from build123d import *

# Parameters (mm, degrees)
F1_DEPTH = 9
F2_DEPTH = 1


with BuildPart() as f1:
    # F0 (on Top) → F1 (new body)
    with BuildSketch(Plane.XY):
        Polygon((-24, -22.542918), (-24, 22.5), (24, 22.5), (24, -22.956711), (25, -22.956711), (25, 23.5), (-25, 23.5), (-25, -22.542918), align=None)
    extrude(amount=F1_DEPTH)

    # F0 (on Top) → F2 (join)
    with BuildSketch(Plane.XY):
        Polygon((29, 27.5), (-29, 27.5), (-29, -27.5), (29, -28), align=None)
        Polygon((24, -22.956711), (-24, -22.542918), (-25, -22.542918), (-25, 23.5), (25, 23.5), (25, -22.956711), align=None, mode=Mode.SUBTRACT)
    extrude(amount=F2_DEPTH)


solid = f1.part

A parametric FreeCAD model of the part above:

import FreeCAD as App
import Part
import Sketcher

V = App.Vector


def add_polygon(sketch, points):
    """Adds a closed chain of lines whose ends are joined by coincident constraints."""
    first, n = sketch.GeometryCount, len(points)
    for a, b in zip(points, points[1:] + points[:1]):
        sketch.addGeometry(Part.LineSegment(App.Vector(*a, 0), App.Vector(*b, 0)), False)
    for i in range(n):
        sketch.addConstraint(Sketcher.Constraint("Coincident", first + i, 2, first + (i + 1) % n, 1))

doc = App.newDocument("Part")
body = doc.addObject("PartDesign::Body", "Body")

# Sketch on XY plane
sketch1 = body.newObject("Sketcher::SketchObject", "Sketch")
sketch1.AttachmentSupport = (doc.getObject("XY_Plane"), [""])
sketch1.MapMode = "FlatFace"
add_polygon(sketch1, [(-24, -22.542918), (-24, 22.5), (24, 22.5), (24, -22.956711), (25, -22.956711), (25, 23.5), (-25, 23.5), (-25, -22.542918)])  # lines 0-7
sketch1.addConstraint(Sketcher.Constraint("Vertical", 0))
sketch1.addConstraint(Sketcher.Constraint("Horizontal", 1))
sketch1.addConstraint(Sketcher.Constraint("Vertical", 2))
sketch1.addConstraint(Sketcher.Constraint("Horizontal", 3))
sketch1.addConstraint(Sketcher.Constraint("Vertical", 4))
sketch1.addConstraint(Sketcher.Constraint("Horizontal", 5))
sketch1.addConstraint(Sketcher.Constraint("Vertical", 6))
sketch1.addConstraint(Sketcher.Constraint("Horizontal", 7))
sketch1.addConstraint(Sketcher.Constraint("Equal", 3, 7))
sketch1.addConstraint(Sketcher.Constraint("DistanceX", 1, 1, 1, 2, 48.0))
sketch1.addConstraint(Sketcher.Constraint("DistanceX", 3, 1, 3, 2, 1.0))
sketch1.addConstraint(Sketcher.Constraint("DistanceX", 0, 2, -1, 1, 24.0))
sketch1.addConstraint(Sketcher.Constraint("DistanceY", 1, 2, 4, 2, 1.0))
sketch1.addConstraint(Sketcher.Constraint("DistanceY", -1, 1, 0, 2, 22.5))
sketch1.addConstraint(Sketcher.Constraint("DistanceY", 2, 2, 2, 1, 45.456711))
sketch1.addConstraint(Sketcher.Constraint("DistanceY", 0, 1, 0, 2, 45.042918))
pad1 = body.newObject("PartDesign::Pad", "Pad")
pad1.Profile = sketch1
pad1.Length = 9

# Sketch on XY plane
sketch2 = body.newObject("Sketcher::SketchObject", "Sketch001")
sketch2.AttachmentSupport = (doc.getObject("XY_Plane"), [""])
sketch2.MapMode = "FlatFace"
add_polygon(sketch2, [(29, 27.5), (-29, 27.5), (-29, -27.5), (29, -28)])  # lines 0-3
add_polygon(sketch2, [(25, -22.956711), (24, -22.956711), (-24, -22.542918), (-25, -22.542918), (-25, 23.5), (25, 23.5)])  # lines 4-9
sketch2.addConstraint(Sketcher.Constraint("Horizontal", 0))
sketch2.addConstraint(Sketcher.Constraint("Vertical", 1))
sketch2.addConstraint(Sketcher.Constraint("Vertical", 3))
sketch2.addConstraint(Sketcher.Constraint("Horizontal", 4))
sketch2.addConstraint(Sketcher.Constraint("Horizontal", 6))
sketch2.addConstraint(Sketcher.Constraint("Vertical", 7))
sketch2.addConstraint(Sketcher.Constraint("Horizontal", 8))
sketch2.addConstraint(Sketcher.Constraint("Vertical", 9))
sketch2.addConstraint(Sketcher.Constraint("Symmetric", 1, 2, 3, 2, -1, 1))
sketch2.addConstraint(Sketcher.Constraint("Parallel", 2, 5))
sketch2.addConstraint(Sketcher.Constraint("Equal", 4, 6))
sketch2.addConstraint(Sketcher.Constraint("DistanceX", 0, 2, 0, 1, 58.0))
sketch2.addConstraint(Sketcher.Constraint("DistanceX", 4, 2, 4, 1, 1.0))
sketch2.addConstraint(Sketcher.Constraint("DistanceX", 8, 1, 8, 2, 50.0))
sketch2.addConstraint(Sketcher.Constraint("DistanceY", 1, 2, 1, 1, 55.0))
sketch2.addConstraint(Sketcher.Constraint("DistanceY", 3, 1, 3, 2, 55.5))
sketch2.addConstraint(Sketcher.Constraint("DistanceX", -1, 1, 4, 2, 24.0))
sketch2.addConstraint(Sketcher.Constraint("DistanceY", 7, 2, 0, 2, 4.0))
sketch2.addConstraint(Sketcher.Constraint("DistanceY", 9, 2, 9, 1, 46.456711))
pad2 = body.newObject("PartDesign::Pad", "Pad001")
pad2.Profile = sketch2
pad2.Length = 1

doc.recompute()
